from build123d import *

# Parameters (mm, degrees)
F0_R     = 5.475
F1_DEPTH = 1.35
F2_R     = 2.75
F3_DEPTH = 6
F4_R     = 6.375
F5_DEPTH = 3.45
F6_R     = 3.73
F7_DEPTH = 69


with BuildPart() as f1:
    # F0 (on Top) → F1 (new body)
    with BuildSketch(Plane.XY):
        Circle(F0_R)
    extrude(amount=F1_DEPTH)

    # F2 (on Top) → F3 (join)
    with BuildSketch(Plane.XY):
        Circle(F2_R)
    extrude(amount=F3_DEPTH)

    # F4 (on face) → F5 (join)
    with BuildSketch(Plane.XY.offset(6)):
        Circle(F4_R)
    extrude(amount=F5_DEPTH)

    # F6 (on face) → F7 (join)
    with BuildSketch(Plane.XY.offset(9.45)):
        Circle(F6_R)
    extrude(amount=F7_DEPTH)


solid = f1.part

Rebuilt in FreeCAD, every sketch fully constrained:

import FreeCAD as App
import Part
import Sketcher
Q = App.Units.Quantity

doc = App.newDocument("Part")
body = doc.addObject("PartDesign::Body", "Body")

# Sketch on XY plane
sketch1 = body.newObject("Sketcher::SketchObject", "Sketch")
sketch1.AttachmentSupport = (doc.getObject("XY_Plane"), [""])
sketch1.MapMode = "FlatFace"
sketch1.addGeometry(Part.Circle(App.Vector(0, 0, 0), App.Vector(0, 0, 1), 5.475), False)
sketch1.addConstraint([
    Sketcher.Constraint("Coincident", 0, 3, -1, 1),
    Sketcher.Constraint("Diameter", 0, Q("10.95 mm")),
])
pad1 = body.newObject("PartDesign::Pad", "Pad")
pad1.Profile = sketch1
pad1.Length = 1.35

# Sketch on XY plane
sketch2 = body.newObject("Sketcher::SketchObject", "Sketch001")
sketch2.AttachmentSupport = (doc.getObject("XY_Plane"), [""])
sketch2.MapMode = "FlatFace"
sketch2.addGeometry(Part.Circle(App.Vector(0, 0, 0), App.Vector(0, 0, 1), 2.75), False)
sketch2.addConstraint([
    Sketcher.Constraint("Coincident", 0, 3, -1, 1),
    Sketcher.Constraint("Diameter", 0, Q("5.5 mm")),
])
pad2 = body.newObject("PartDesign::Pad", "Pad001")
pad2.Profile = sketch2
pad2.Length = 6

# Sketch on XY plane
sketch3 = body.newObject("Sketcher::SketchObject", "Sketch002")
sketch3.AttachmentSupport = (doc.getObject("XY_Plane"), [""])
sketch3.MapMode = "FlatFace"
sketch3.AttachmentOffset = App.Placement(App.Vector(0, 0, 6), App.Rotation())
sketch3.addGeometry(Part.Circle(App.Vector(0, 0, 0), App.Vector(0, 0, 1), 6.375), False)
sketch3.addConstraint([
    Sketcher.Constraint("Coincident", 0, 3, -1, 1),
    Sketcher.Constraint("Diameter", 0, Q("12.75 mm")),
])
pad3 = body.newObject("PartDesign::Pad", "Pad002")
pad3.Profile = sketch3
pad3.Length = 3.45

# Sketch on XY plane
sketch4 = body.newObject("Sketcher::SketchObject", "Sketch003")
sketch4.AttachmentSupport = (doc.getObject("XY_Plane"), [""])
sketch4.MapMode = "FlatFace"
sketch4.AttachmentOffset = App.Placement(App.Vector(0, 0, 9.45), App.Rotation())
sketch4.addGeometry(Part.Circle(App.Vector(0, 0, 0), App.Vector(0, 0, 1), 3.73), False)
sketch4.addConstraint([
    Sketcher.Constraint("Coincident", 0, 3, -1, 1),
    Sketcher.Constraint("Diameter", 0, Q("7.46 mm")),
])
pad4 = body.newObject("PartDesign::Pad", "Pad003")
pad4.Profile = sketch4
pad4.Length = 69

doc.recompute()
